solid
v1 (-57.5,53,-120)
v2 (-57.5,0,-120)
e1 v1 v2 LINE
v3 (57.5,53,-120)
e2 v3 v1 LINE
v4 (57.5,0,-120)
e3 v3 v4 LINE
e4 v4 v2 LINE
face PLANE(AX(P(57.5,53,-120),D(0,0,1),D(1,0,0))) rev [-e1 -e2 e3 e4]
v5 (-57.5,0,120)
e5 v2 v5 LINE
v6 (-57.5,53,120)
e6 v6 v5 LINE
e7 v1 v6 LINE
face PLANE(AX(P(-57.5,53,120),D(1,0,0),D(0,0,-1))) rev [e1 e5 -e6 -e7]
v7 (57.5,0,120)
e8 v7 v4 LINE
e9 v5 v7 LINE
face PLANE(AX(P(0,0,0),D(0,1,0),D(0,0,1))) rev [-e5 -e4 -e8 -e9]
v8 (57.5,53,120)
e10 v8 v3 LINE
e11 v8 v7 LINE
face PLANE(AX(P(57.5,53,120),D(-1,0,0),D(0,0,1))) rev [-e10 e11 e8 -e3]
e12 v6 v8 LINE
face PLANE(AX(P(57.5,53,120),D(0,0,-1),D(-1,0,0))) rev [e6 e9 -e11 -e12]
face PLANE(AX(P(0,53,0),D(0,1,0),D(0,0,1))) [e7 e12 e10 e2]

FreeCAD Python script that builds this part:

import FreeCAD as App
import Part
import Sketcher

V = App.Vector
Q = App.Units.Quantity

doc = App.newDocument("Part")
body = doc.addObject("PartDesign::Body", "Body")

# Sketch on XZ plane
sketch1 = body.newObject("Sketcher::SketchObject", "Sketch")
sketch1.AttachmentSupport = (doc.getObject("XZ_Plane"), [""])
sketch1.MapMode = "FlatFace"
sketch1.addGeometry(Part.LineSegment(V(-57.5, -120, 0), V(-57.5, 120, 0)), False)
sketch1.addGeometry(Part.LineSegment(V(-57.5, 120, 0), V(57.5, 120, 0)), False)
sketch1.addGeometry(Part.LineSegment(V(57.5, 120, 0), V(57.5, -120, 0)), False)
sketch1.addGeometry(Part.LineSegment(V(57.5, -120, 0), V(-57.5, -120, 0)), False)
sketch1.addConstraint(Sketcher.Constraint("Coincident", 0, 2, 1, 1))
sketch1.addConstraint(Sketcher.Constraint("Coincident", 1, 2, 2, 1))
sketch1.addConstraint(Sketcher.Constraint("Coincident", 2, 2, 3, 1))
sketch1.addConstraint(Sketcher.Constraint("Coincident", 3, 2, 0, 1))
sketch1.addConstraint(Sketcher.Constraint("Vertical", 0))
sketch1.addConstraint(Sketcher.Constraint("Horizontal", 1))
sketch1.addConstraint(Sketcher.Constraint("Vertical", 2))
sketch1.addConstraint(Sketcher.Constraint("Horizontal", 3))
sketch1.addConstraint(Sketcher.Constraint("Symmetric", 0, 2, 2, 2, -1, 1))
sketch1.addConstraint(Sketcher.Constraint("DistanceX", 1, 1, 1, 2, Q("115 mm")))
sketch1.addConstraint(Sketcher.Constraint("DistanceY", 0, 1, 0, 2, Q("240 mm")))
pad1 = body.newObject("PartDesign::Pad", "Pad")
pad1.Profile = sketch1
pad1.Length = 53
pad1.Reversed = True

doc.recompute()
